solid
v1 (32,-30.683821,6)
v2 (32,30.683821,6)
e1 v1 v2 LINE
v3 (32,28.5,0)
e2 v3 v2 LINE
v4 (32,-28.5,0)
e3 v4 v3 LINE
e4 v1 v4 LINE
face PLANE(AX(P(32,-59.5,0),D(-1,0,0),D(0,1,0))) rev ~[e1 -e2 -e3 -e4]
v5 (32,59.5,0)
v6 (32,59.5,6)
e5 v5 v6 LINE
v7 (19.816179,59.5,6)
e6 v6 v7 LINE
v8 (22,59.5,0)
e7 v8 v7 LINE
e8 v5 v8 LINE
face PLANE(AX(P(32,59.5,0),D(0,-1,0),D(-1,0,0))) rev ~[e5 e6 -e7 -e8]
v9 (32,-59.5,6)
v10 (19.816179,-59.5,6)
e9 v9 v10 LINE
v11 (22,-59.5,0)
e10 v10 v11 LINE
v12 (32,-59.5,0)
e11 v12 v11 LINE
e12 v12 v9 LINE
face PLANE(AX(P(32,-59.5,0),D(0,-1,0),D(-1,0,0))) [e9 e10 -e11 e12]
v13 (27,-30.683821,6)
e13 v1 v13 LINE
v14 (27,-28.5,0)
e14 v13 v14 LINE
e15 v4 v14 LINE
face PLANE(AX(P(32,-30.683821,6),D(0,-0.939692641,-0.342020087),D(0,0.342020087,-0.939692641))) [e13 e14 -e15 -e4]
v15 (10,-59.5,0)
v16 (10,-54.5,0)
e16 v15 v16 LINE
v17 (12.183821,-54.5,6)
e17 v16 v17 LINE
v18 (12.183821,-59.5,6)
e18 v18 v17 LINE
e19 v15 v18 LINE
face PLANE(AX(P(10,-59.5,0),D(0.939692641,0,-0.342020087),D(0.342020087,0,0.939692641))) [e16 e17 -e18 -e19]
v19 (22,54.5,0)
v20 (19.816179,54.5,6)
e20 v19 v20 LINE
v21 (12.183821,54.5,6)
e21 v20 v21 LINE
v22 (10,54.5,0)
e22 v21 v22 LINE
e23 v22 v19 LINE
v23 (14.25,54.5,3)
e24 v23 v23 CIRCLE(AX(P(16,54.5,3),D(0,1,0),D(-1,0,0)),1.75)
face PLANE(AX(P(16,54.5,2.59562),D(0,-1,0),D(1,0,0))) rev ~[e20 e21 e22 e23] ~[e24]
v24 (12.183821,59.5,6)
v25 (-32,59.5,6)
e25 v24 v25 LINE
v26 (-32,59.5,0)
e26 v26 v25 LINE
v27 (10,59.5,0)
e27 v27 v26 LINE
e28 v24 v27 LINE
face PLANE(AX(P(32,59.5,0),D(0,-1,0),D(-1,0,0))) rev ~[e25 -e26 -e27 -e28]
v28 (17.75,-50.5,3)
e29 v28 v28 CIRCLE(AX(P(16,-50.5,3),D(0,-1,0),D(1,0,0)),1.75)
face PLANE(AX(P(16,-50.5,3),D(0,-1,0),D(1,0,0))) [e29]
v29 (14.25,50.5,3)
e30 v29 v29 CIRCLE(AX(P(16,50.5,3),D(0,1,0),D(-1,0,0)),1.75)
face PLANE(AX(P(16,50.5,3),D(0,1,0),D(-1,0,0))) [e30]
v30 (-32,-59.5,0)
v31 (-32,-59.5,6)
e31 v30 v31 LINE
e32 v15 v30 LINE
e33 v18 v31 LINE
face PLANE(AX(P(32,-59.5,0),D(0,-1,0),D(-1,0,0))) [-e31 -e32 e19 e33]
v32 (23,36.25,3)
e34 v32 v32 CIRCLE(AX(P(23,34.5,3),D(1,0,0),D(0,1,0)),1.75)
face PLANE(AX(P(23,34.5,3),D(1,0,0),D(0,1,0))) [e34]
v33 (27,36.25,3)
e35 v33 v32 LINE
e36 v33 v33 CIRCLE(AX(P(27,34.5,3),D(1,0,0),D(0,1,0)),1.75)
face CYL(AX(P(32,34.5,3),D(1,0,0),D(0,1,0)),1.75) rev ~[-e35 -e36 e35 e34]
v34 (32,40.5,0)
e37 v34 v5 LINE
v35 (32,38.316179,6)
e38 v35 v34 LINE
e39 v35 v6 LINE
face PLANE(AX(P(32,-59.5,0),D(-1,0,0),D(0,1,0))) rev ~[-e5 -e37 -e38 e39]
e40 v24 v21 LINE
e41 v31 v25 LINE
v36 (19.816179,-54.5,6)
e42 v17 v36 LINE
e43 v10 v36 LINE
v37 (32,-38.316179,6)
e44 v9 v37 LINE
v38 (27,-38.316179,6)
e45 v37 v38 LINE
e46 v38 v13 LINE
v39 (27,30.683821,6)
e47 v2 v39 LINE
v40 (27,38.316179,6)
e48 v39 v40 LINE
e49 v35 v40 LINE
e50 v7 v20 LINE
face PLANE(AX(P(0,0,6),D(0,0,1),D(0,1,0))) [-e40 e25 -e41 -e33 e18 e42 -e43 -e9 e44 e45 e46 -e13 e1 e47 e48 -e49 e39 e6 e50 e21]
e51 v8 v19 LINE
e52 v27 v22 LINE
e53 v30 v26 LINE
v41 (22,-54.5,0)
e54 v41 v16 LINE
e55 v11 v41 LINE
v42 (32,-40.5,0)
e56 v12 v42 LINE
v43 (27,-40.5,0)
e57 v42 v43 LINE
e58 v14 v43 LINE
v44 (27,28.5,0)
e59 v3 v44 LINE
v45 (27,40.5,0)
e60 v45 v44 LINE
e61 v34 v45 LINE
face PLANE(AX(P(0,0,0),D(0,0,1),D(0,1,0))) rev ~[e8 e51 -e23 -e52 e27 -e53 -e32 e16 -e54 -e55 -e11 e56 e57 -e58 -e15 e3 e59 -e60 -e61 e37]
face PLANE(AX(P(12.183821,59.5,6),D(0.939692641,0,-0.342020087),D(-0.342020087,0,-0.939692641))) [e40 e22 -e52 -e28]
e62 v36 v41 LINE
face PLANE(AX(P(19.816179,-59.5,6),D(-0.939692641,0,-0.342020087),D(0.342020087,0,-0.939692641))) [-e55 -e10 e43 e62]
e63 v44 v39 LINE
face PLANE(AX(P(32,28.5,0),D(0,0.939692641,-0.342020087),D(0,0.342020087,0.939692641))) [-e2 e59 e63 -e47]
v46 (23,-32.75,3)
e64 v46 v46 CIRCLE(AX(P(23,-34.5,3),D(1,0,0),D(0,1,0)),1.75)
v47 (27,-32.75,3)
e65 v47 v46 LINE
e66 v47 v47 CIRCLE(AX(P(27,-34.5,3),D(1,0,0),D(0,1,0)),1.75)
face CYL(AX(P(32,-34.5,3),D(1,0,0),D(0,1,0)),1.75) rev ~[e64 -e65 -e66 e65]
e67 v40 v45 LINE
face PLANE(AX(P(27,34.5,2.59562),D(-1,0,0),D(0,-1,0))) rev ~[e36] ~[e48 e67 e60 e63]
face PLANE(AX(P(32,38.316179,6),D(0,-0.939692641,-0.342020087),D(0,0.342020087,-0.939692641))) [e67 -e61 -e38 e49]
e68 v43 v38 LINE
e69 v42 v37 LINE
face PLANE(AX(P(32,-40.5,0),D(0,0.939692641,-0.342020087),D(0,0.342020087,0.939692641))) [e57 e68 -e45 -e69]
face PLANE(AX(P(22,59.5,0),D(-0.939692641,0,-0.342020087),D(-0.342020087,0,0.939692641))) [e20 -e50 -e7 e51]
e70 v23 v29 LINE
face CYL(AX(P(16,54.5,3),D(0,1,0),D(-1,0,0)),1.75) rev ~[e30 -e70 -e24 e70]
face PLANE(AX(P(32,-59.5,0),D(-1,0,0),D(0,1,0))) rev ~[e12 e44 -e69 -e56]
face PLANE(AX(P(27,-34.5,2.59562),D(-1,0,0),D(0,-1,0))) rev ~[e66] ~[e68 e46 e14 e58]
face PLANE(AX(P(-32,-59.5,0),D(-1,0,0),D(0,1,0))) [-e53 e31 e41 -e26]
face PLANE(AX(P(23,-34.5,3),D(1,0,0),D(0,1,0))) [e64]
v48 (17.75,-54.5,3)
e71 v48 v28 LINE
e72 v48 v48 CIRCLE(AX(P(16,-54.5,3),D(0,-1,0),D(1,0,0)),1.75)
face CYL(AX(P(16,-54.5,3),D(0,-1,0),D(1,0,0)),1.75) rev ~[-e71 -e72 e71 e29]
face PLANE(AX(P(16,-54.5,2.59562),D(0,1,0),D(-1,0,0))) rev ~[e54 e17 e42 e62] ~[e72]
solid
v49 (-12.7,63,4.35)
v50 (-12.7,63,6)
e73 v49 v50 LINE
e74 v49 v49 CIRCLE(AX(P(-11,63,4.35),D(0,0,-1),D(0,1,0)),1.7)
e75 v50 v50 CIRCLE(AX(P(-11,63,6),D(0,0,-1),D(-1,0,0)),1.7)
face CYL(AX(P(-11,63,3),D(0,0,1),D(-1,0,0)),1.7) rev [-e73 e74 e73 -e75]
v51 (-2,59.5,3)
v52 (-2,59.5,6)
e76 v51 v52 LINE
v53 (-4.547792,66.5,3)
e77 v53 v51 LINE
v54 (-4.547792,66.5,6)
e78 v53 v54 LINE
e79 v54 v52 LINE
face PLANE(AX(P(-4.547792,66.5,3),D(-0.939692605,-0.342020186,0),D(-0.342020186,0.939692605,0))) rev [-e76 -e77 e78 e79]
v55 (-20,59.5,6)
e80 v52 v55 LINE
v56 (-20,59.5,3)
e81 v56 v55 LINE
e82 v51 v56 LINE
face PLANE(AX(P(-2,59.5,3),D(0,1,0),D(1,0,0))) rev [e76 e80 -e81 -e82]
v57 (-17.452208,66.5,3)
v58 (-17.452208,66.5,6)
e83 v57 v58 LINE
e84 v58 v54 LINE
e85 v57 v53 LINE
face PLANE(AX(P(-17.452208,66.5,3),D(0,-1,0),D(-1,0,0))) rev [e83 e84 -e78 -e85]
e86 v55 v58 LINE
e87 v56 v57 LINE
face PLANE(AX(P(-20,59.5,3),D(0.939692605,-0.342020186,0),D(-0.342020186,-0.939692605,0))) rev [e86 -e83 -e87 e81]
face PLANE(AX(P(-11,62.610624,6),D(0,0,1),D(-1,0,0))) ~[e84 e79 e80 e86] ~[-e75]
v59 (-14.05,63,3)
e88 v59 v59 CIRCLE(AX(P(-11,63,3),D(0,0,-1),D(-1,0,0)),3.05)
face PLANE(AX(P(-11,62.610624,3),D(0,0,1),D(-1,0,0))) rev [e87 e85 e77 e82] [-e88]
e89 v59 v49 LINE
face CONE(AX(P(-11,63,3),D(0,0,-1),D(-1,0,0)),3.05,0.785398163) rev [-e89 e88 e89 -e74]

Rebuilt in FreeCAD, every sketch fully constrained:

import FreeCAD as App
import Part
import Sketcher

V = App.Vector
Q = App.Units.Quantity

doc = App.newDocument("Part")
params = doc.addObject("Spreadsheet::Sheet", "Params")
for row, (alias, value) in enumerate([
    ("sketch1_width", "64 mm"),
    ("sketch1_height", "119 mm"),
    ("pad1_length", "6 mm"),
    ("sketch2_diameter", "3.5 mm"),
    ("pocket1_length", "9 mm"),
    ("sketch3_width", "12 mm"),
    ("pocket2_length", "5 mm"),
    ("sketch4_width", "12 mm"),
    ("pocket3_length", "5 mm"),
    ("sketch5_diameter", "3.5 mm"),
    ("pocket4_length", "4 mm"),
    ("sketch6_width", "12 mm"),
    ("pocket5_length", "5 mm"),
    ("sketch7_diameter", "3.5 mm"),
    ("pocket6_length", "4 mm"),
    ("sketch8_width", "18 mm"),
    ("pad2_length", "3 mm"),
    ("sketch9_diameter", "3.4 mm"),
    ("hole_diameter", "3.4 mm"),
    ("hole_depth", "25 mm"),
    ("hole_csink_diameter", "6.1 mm"),
], start=1):
    params.set(f"A{row}", alias)
    params.set(f"B{row}", "=" + value)
    params.setAlias(f"B{row}", alias)

body = doc.addObject("PartDesign::Body", "Body")

sketch1 = body.newObject("Sketcher::SketchObject", "Sketch")
sketch1.AttachmentSupport = (doc.getObject("XY_Plane"), [""])
sketch1.MapMode = "FlatFace"
sketch1.addGeometry(Part.LineSegment(V(-32, -59.5, 0), V(32, -59.5, 0)), False)
sketch1.addGeometry(Part.LineSegment(V(32, -59.5, 0), V(32, 59.5, 0)), False)
sketch1.addGeometry(Part.LineSegment(V(32, 59.5, 0), V(-32, 59.5, 0)), False)
sketch1.addGeometry(Part.LineSegment(V(-32, 59.5, 0), V(-32, -59.5, 0)), False)
sketch1.addConstraint(Sketcher.Constraint("Coincident", 0, 2, 1, 1))
sketch1.addConstraint(Sketcher.Constraint("Coincident", 1, 2, 2, 1))
sketch1.addConstraint(Sketcher.Constraint("Coincident", 2, 2, 3, 1))
sketch1.addConstraint(Sketcher.Constraint("Coincident", 3, 2, 0, 1))
sketch1.addConstraint(Sketcher.Constraint("Horizontal", 0))
sketch1.addConstraint(Sketcher.Constraint("Vertical", 1))
sketch1.addConstraint(Sketcher.Constraint("Horizontal", 2))
sketch1.addConstraint(Sketcher.Constraint("Vertical", 3))
sketch1.addConstraint(Sketcher.Constraint("Symmetric", 0, 2, 2, 2, -1, 1))
sketch1.addConstraint(Sketcher.Constraint("DistanceX", 0, 1, 0, 2, Q("64 mm")))
sketch1.addConstraint(Sketcher.Constraint("DistanceY", 1, 1, 1, 2, Q("119 mm")))
sketch1.setExpression("Constraints[9]", "Params.sketch1_width")
sketch1.setExpression("Constraints[10]", "Params.sketch1_height")
pad1 = body.newObject("PartDesign::Pad", "Pad")
pad1.Profile = sketch1
pad1.setExpression("Length", "Params.pad1_length")

sketch2 = body.newObject("Sketcher::SketchObject", "Sketch001")
sketch2.AttachmentSupport = (doc.getObject("YZ_Plane"), [""])
sketch2.MapMode = "FlatFace"
sketch2.AttachmentOffset = App.Placement(V(0, 0, 32), App.Rotation())
sketch2.addGeometry(Part.Circle(V(-34.5, 3, 0), V(0, 0, 1), 1.75), False)
sketch2.addGeometry(Part.Circle(V(34.5, 3, 0), V(0, 0, 1), 1.75), False)
sketch2.addConstraint(Sketcher.Constraint("Equal", 0, 1))
sketch2.addConstraint(Sketcher.Constraint("Symmetric", 0, 3, 1, 3, -2))
sketch2.addConstraint(Sketcher.Constraint("Diameter", 0, Q("3.5 mm")))
sketch2.addConstraint(Sketcher.Constraint("DistanceY", -1, 1, 0, 3, Q("3 mm")))
sketch2.addConstraint(Sketcher.Constraint("DistanceX", 0, 3, 1, 3, Q("69 mm")))
sketch2.setExpression("Constraints[2]", "Params.sketch2_diameter")
pocket1 = body.newObject("PartDesign::Pocket", "Pocket")
pocket1.Profile = sketch2
pocket1.setExpression("Length", "Params.pocket1_length")

sketch3 = body.newObject("Sketcher::SketchObject", "Sketch002")
sketch3.AttachmentSupport = (doc.getObject("YZ_Plane"), [""])
sketch3.MapMode = "FlatFace"
sketch3.AttachmentOffset = App.Placement(V(0, 0, 32), App.Rotation())
sketch3.addGeometry(Part.LineSegment(V(-38.316179, 6, 0), V(-40.5, 0, 0)), False)
sketch3.addGeometry(Part.LineSegment(V(-40.5, 0, 0), V(-28.5, 0, 0)), False)
sketch3.addGeometry(Part.LineSegment(V(-28.5, 0, 0), V(-30.683821, 6, 0)), False)
sketch3.addGeometry(Part.LineSegment(V(-30.683821, 6, 0), V(-38.316179, 6, 0)), False)
sketch3.addGeometry(Part.LineSegment(V(38.316179, 6, 0), V(30.683821, 6, 0)), False)
sketch3.addGeometry(Part.LineSegment(V(30.683821, 6, 0), V(28.5, 0, 0)), False)
sketch3.addGeometry(Part.LineSegment(V(28.5, 0, 0), V(40.5, 0, 0)), False)
sketch3.addGeometry(Part.LineSegment(V(40.5, 0, 0), V(38.316179, 6, 0)), False)
sketch3.addConstraint(Sketcher.Constraint("Coincident", 0, 2, 1, 1))
sketch3.addConstraint(Sketcher.Constraint("Coincident", 1, 2, 2, 1))
sketch3.addConstraint(Sketcher.Constraint("Coincident", 2, 2, 3, 1))
sketch3.addConstraint(Sketcher.Constraint("Coincident", 3, 2, 0, 1))
sketch3.addConstraint(Sketcher.Constraint("Coincident", 4, 2, 5, 1))
sketch3.addConstraint(Sketcher.Constraint("Coincident", 5, 2, 6, 1))
sketch3.addConstraint(Sketcher.Constraint("Coincident", 6, 2, 7, 1))
sketch3.addConstraint(Sketcher.Constraint("Coincident", 7, 2, 4, 1))
sketch3.addConstraint(Sketcher.Constraint("Horizontal", 1))
sketch3.addConstraint(Sketcher.Constraint("Horizontal", 3))
sketch3.addConstraint(Sketcher.Constraint("Horizontal", 4))
sketch3.addConstraint(Sketcher.Constraint("Horizontal", 6))
sketch3.addConstraint(Sketcher.Constraint("Symmetric", 1, 2, 5, 2, -1, 1))
sketch3.addConstraint(Sketcher.Constraint("Symmetric", 2, 2, 4, 2, -2))
sketch3.addConstraint(Sketcher.Constraint("Symmetric", 0, 2, 6, 2, -2))
sketch3.addConstraint(Sketcher.Constraint("Parallel", 0, 5))
sketch3.addConstraint(Sketcher.Constraint("Parallel", 2, 7))
sketch3.addConstraint(Sketcher.Constraint("DistanceX", 1, 1, 1, 2, Q("12 mm")))
sketch3.addConstraint(Sketcher.Constraint("Angle", 0, Q("-109.999997 deg")))
sketch3.addConstraint(Sketcher.Constraint("DistanceY", -1, 1, 2, 2, Q("6 mm")))
sketch3.addConstraint(Sketcher.Constraint("DistanceX", 3, 2, 4, 2, Q("69 mm")))
sketch3.setExpression("Constraints[17]", "Params.sketch3_width")
pocket2 = body.newObject("PartDesign::Pocket", "Pocket001")
pocket2.Profile = sketch3
pocket2.setExpression("Length", "Params.pocket2_length")

sketch4 = body.newObject("Sketcher::SketchObject", "Sketch003")
sketch4.AttachmentSupport = (doc.getObject("XZ_Plane"), [""])
sketch4.MapMode = "FlatFace"
sketch4.AttachmentOffset = App.Placement(V(0, 0, 59.5), App.Rotation())
sketch4.addGeometry(Part.LineSegment(V(12.183821, 6, 0), V(10, 0, 0)), False)
sketch4.addGeometry(Part.LineSegment(V(10, 0, 0), V(22, 0, 0)), False)
sketch4.addGeometry(Part.LineSegment(V(22, 0, 0), V(19.816179, 6, 0)), False)
sketch4.addGeometry(Part.LineSegment(V(19.816179, 6, 0), V(12.183821, 6, 0)), False)
sketch4.addConstraint(Sketcher.Constraint("Coincident", 0, 2, 1, 1))
sketch4.addConstraint(Sketcher.Constraint("Coincident", 1, 2, 2, 1))
sketch4.addConstraint(Sketcher.Constraint("Coincident", 2, 2, 3, 1))
sketch4.addConstraint(Sketcher.Constraint("Coincident", 3, 2, 0, 1))
sketch4.addConstraint(Sketcher.Constraint("Horizontal", 1))
sketch4.addConstraint(Sketcher.Constraint("Horizontal", 3))
sketch4.addConstraint(Sketcher.Constraint("PointOnObject", 0, 2, -1))
sketch4.addConstraint(Sketcher.Constraint("Equal", 0, 2))
sketch4.addConstraint(Sketcher.Constraint("DistanceX", 1, 1, 1, 2, Q("12 mm")))
sketch4.addConstraint(Sketcher.Constraint("Angle", 0, Q("-109.999997 deg")))
sketch4.addConstraint(Sketcher.Constraint("DistanceX", -1, 1, 0, 2, Q("10 mm")))
sketch4.addConstraint(Sketcher.Constraint("DistanceY", -1, 1, 2, 2, Q("6 mm")))
sketch4.setExpression("Constraints[8]", "Params.sketch4_width")
pocket3 = body.newObject("PartDesign::Pocket", "Pocket002")
pocket3.Profile = sketch4
pocket3.setExpression("Length", "Params.pocket3_length")

sketch5 = body.newObject("Sketcher::SketchObject", "Sketch004")
sketch5.AttachmentSupport = (doc.getObject("XZ_Plane"), [""])
sketch5.MapMode = "FlatFace"
sketch5.AttachmentOffset = App.Placement(V(0, 0, 54.5), App.Rotation())
sketch5.addGeometry(Part.Circle(V(16, 3, 0), V(0, 0, 1), 1.75), False)
sketch5.addConstraint(Sketcher.Constraint("Diameter", 0, Q("3.5 mm")))
sketch5.addConstraint(Sketcher.Constraint("DistanceX", -1, 1, 0, 3, Q("16 mm")))
sketch5.addConstraint(Sketcher.Constraint("DistanceY", -1, 1, 0, 3, Q("3 mm")))
sketch5.setExpression("Constraints[0]", "Params.sketch5_diameter")
pocket4 = body.newObject("PartDesign::Pocket", "Pocket003")
pocket4.Profile = sketch5
pocket4.setExpression("Length", "Params.pocket4_length")

sketch6 = body.newObject("Sketcher::SketchObject", "Sketch005")
sketch6.AttachmentSupport = (doc.getObject("XZ_Plane"), [""])
sketch6.MapMode = "FlatFace"
sketch6.AttachmentOffset = App.Placement(V(0, 0, -59.5), App.Rotation())
sketch6.addGeometry(Part.LineSegment(V(19.816179, 6, 0), V(22, 0, 0)), False)
sketch6.addGeometry(Part.LineSegment(V(22, 0, 0), V(10, 0, 0)), False)
sketch6.addGeometry(Part.LineSegment(V(10, 0, 0), V(12.183821, 6, 0)), False)
sketch6.addGeometry(Part.LineSegment(V(12.183821, 6, 0), V(19.816179, 6, 0)), False)
sketch6.addConstraint(Sketcher.Constraint("Coincident", 0, 2, 1, 1))
sketch6.addConstraint(Sketcher.Constraint("Coincident", 1, 2, 2, 1))
sketch6.addConstraint(Sketcher.Constraint("Coincident", 2, 2, 3, 1))
sketch6.addConstraint(Sketcher.Constraint("Coincident", 3, 2, 0, 1))
sketch6.addConstraint(Sketcher.Constraint("Horizontal", 1))
sketch6.addConstraint(Sketcher.Constraint("Horizontal", 3))
sketch6.addConstraint(Sketcher.Constraint("PointOnObject", 0, 2, -1))
sketch6.addConstraint(Sketcher.Constraint("Equal", 0, 2))
sketch6.addConstraint(Sketcher.Constraint("DistanceX", 1, 2, 1, 1, Q("12 mm")))
sketch6.addConstraint(Sketcher.Constraint("Angle", 0, Q("-70.000003 deg")))
sketch6.addConstraint(Sketcher.Constraint("DistanceX", -1, 1, 0, 2, Q("22 mm")))
sketch6.addConstraint(Sketcher.Constraint("DistanceY", -1, 1, 2, 2, Q("6 mm")))
sketch6.setExpression("Constraints[8]", "Params.sketch6_width")
pocket5 = body.newObject("PartDesign::Pocket", "Pocket004")
pocket5.Profile = sketch6
pocket5.setExpression("Length", "Params.pocket5_length")
pocket5.Reversed = True

sketch7 = body.newObject("Sketcher::SketchObject", "Sketch006")
sketch7.AttachmentSupport = (doc.getObject("XZ_Plane"), [""])
sketch7.MapMode = "FlatFace"
sketch7.AttachmentOffset = App.Placement(V(0, 0, -54.5), App.Rotation())
sketch7.addGeometry(Part.Circle(V(16, 3, 0), V(0, 0, 1), 1.75), False)
sketch7.addConstraint(Sketcher.Constraint("Diameter", 0, Q("3.5 mm")))
sketch7.addConstraint(Sketcher.Constraint("DistanceX", -1, 1, 0, 3, Q("16 mm")))
sketch7.addConstraint(Sketcher.Constraint("DistanceY", -1, 1, 0, 3, Q("3 mm")))
sketch7.setExpression("Constraints[0]", "Params.sketch7_diameter")
pocket6 = body.newObject("PartDesign::Pocket", "Pocket005")
pocket6.Profile = sketch7
pocket6.setExpression("Length", "Params.pocket6_length")
pocket6.Reversed = True
body2 = doc.addObject("PartDesign::Body", "Body001")

sketch8 = body2.newObject("Sketcher::SketchObject", "Sketch007")
sketch8.AttachmentSupport = (doc.getObject("XY_Plane001"), [""])
sketch8.MapMode = "FlatFace"
sketch8.AttachmentOffset = App.Placement(V(0, 0, 3), App.Rotation())
sketch8.addGeometry(Part.LineSegment(V(-20, -59.5, 0), V(-17.452208, -66.5, 0)), False)
sketch8.addGeometry(Part.LineSegment(V(-17.452208, -66.5, 0), V(-4.547792, -66.5, 0)), False)
sketch8.addGeometry(Part.LineSegment(V(-4.547792, -66.5, 0), V(-2, -59.5, 0)), False)
sketch8.addGeometry(Part.LineSegment(V(-2, -59.5, 0), V(-20, -59.5, 0)), False)
sketch8.addConstraint(Sketcher.Constraint("Coincident", 0, 2, 1, 1))
sketch8.addConstraint(Sketcher.Constraint("Coincident", 1, 2, 2, 1))
sketch8.addConstraint(Sketcher.Constraint("Coincident", 2, 2, 3, 1))
sketch8.addConstraint(Sketcher.Constraint("Coincident", 3, 2, 0, 1))
sketch8.addConstraint(Sketcher.Constraint("Horizontal", 1))
sketch8.addConstraint(Sketcher.Constraint("Horizontal", 3))
sketch8.addConstraint(Sketcher.Constraint("Equal", 0, 2))
sketch8.addConstraint(Sketcher.Constraint("DistanceX", 3, 2, 3, 1, Q("18 mm")))
sketch8.addConstraint(Sketcher.Constraint("Angle", 0, Q("-69.999997 deg")))
sketch8.addConstraint(Sketcher.Constraint("DistanceX", 2, 2, -1, 1, Q("2 mm")))
sketch8.addConstraint(Sketcher.Constraint("DistanceY", 1, 2, 2, 2, Q("7 mm")))
sketch8.addConstraint(Sketcher.Constraint("DistanceY", 0, 2, -1, 1, Q("66.5 mm")))
sketch8.setExpression("Constraints[7]", "Params.sketch8_width")
pad2 = body2.newObject("PartDesign::Pad", "Pad001")
pad2.Profile = sketch8
pad2.setExpression("Length", "Params.pad2_length")

sketch9 = body2.newObject("Sketcher::SketchObject", "Sketch008")
sketch9.AttachmentSupport = (doc.getObject("XY_Plane001"), [""])
sketch9.MapMode = "FlatFace"
sketch9.AttachmentOffset = App.Placement(V(0, 0, 3), App.Rotation())
sketch9.addGeometry(Part.Circle(V(-11, -63, 0), V(0, 0, 1), 1.7), False)
sketch9.addConstraint(Sketcher.Constraint("Diameter", 0, Q("3.4 mm")))
sketch9.addConstraint(Sketcher.Constraint("DistanceX", 0, 3, -1, 1, Q("11 mm")))
sketch9.addConstraint(Sketcher.Constraint("DistanceY", 0, 3, -1, 1, Q("63 mm")))
sketch9.setExpression("Constraints[0]", "Params.sketch9_diameter")
doc.recompute()
hole = body2.newObject("PartDesign::Hole", "Hole")
hole.Profile = sketch9
hole.ThreadType = "None"
hole.setExpression("Diameter", "Params.hole_diameter")
hole.DepthType = "Dimension"
hole.setExpression("Depth", "Params.hole_depth")
hole.DrillPoint = "Flat"
hole.HoleCutType = "Countersink"
hole.setExpression("HoleCutDiameter", "Params.hole_csink_diameter")
hole.HoleCutCountersinkAngle = 90
hole.Reversed = True
body3 = doc.addObject("PartDesign::Body", "Body002")
doc.recompute()

mirroring = doc.addObject("Part::Mirroring", "Mirroring")
mirroring.Source = body2
mirroring.Base = V(0, 0, 0)
mirroring.Normal = V(0, 1, 0)
body3.BaseFeature = mirroring
doc.recompute()
body2.Visibility = False
mirroring.Visibility = False

doc.recompute()
